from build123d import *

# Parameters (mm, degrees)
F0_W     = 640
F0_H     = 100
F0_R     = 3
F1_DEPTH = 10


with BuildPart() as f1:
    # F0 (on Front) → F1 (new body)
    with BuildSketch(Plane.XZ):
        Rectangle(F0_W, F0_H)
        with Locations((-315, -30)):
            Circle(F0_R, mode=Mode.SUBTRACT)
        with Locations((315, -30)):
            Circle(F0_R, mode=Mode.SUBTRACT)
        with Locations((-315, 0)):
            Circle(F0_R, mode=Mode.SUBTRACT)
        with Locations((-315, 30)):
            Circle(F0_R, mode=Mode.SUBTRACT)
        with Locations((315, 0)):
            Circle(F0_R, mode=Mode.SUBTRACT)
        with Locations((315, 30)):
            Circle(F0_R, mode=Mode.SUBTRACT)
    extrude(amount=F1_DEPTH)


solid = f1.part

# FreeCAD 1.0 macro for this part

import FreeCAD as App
import Part
import Sketcher

V = App.Vector


def add_polygon(sketch, points):
    """Adds a closed chain of lines whose ends are joined by coincident constraints."""
    first, n = sketch.GeometryCount, len(points)
    for a, b in zip(points, points[1:] + points[:1]):
        sketch.addGeometry(Part.LineSegment(App.Vector(*a, 0), App.Vector(*b, 0)), False)
    for i in range(n):
        sketch.addConstraint(Sketcher.Constraint("Coincident", first + i, 2, first + (i + 1) % n, 1))

doc = App.newDocument("Part")
params = doc.addObject("Spreadsheet::Sheet", "Params")
for row, (alias, value) in enumerate([
    ("sketch1_diameter", "6 mm"),
    ("sketch1_width", "640 mm"),
    ("sketch1_height", "100 mm"),
    ("pad1_length", "10 mm"),
], start=1):
    params.set(f"A{row}", alias)
    params.set(f"B{row}", "=" + value)
    params.setAlias(f"B{row}", alias)

body = doc.addObject("PartDesign::Body", "Body")

sketch1 = body.newObject("Sketcher::SketchObject", "Sketch")
sketch1.AttachmentSupport = (doc.getObject("XZ_Plane"), [""])
sketch1.MapMode = "FlatFace"
add_polygon(sketch1, [(-320, 50), (-320, -50), (320, -50), (320, 50)])
sketch1.addGeometry(Part.Circle(V(-315, -30, 0), V(0, 0, 1), 3), False)
sketch1.addGeometry(Part.Circle(V(315, -30, 0), V(0, 0, 1), 3), False)
sketch1.addGeometry(Part.Circle(V(-315, 0, 0), V(0, 0, 1), 3), False)
sketch1.addGeometry(Part.Circle(V(-315, 30, 0), V(0, 0, 1), 3), False)
sketch1.addGeometry(Part.Circle(V(315, 0, 0), V(0, 0, 1), 3), False)
sketch1.addGeometry(Part.Circle(V(315, 30, 0), V(0, 0, 1), 3), False)
sketch1.addConstraint([
    Sketcher.Constraint("Vertical", 0),
    Sketcher.Constraint("Horizontal", 1),
    Sketcher.Constraint("Vertical", 2),
    Sketcher.Constraint("Horizontal", 3),
    Sketcher.Constraint("Equal", 4, 5),
    Sketcher.Constraint("Equal", 5, 6),
    Sketcher.Constraint("Equal", 6, 7),
    Sketcher.Constraint("Equal", 7, 8),
    Sketcher.Constraint("Equal", 8, 9),
    Sketcher.Constraint("Symmetric", 5, 3, 7, 3, -1, 1),
    Sketcher.Constraint("Symmetric", 6, 3, 8, 3, -1, 1),
    Sketcher.Constraint("Symmetric", 4, 3, 9, 3, -1, 1),
    Sketcher.Constraint("Symmetric", 0, 2, 2, 2, -1, 1),
    Sketcher.Constraint("Symmetric", 4, 3, 5, 3, -2),
    Sketcher.Constraint("PointOnObject", 6, 3, -1),
    Sketcher.Constraint("Vertical", 4, 3, 6, 3),
    Sketcher.Constraint("Diameter", 4, 6.0),
    Sketcher.Constraint("DistanceX", 1, 1, 1, 2, 640.0),
    Sketcher.Constraint("DistanceY", 0, 2, 0, 1, 100.0),
    Sketcher.Constraint("DistanceX", 4, 3, -1, 1, 315.0),
    Sketcher.Constraint("DistanceY", 4, 3, -1, 1, 30.0),
])
sketch1.setExpression("Constraints[20]", "Params.sketch1_diameter")
sketch1.setExpression("Constraints[21]", "Params.sketch1_width")
sketch1.setExpression("Constraints[22]", "Params.sketch1_height")
pad1 = body.newObject("PartDesign::Pad", "Pad")
pad1.Profile = sketch1
pad1.setExpression("Length", "Params.pad1_length")

doc.recompute()
